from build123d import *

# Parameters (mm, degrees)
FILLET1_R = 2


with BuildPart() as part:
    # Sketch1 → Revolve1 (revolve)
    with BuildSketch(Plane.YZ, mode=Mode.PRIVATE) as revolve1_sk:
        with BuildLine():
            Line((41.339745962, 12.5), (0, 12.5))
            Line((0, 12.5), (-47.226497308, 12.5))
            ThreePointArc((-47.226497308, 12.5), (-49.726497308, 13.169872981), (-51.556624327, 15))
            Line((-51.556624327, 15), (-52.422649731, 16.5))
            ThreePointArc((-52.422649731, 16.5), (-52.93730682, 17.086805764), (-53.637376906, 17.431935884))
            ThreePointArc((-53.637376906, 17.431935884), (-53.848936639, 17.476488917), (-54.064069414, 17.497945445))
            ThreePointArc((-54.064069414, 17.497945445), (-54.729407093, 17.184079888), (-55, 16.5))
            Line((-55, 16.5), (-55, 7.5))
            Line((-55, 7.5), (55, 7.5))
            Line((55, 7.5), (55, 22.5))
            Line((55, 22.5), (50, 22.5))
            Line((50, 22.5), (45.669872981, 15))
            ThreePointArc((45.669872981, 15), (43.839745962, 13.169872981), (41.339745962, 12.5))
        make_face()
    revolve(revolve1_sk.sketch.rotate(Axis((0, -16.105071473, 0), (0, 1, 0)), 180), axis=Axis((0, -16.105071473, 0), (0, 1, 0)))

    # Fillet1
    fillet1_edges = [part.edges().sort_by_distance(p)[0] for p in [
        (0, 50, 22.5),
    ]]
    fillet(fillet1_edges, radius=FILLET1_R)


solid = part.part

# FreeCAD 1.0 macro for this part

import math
import FreeCAD as App
import Part
import Sketcher
Q = App.Units.Quantity


def edges_at(feature, points):
    """Names of the edges that pass closest to the given points."""
    edges = feature.Shape.Edges
    near = lambda p: min(range(len(edges)), key=lambda i: edges[i].distToShape(Part.Vertex(*p))[0])
    return sorted({f"Edge{near(p) + 1}" for p in points})

doc = App.newDocument("Part")
params = doc.addObject("Spreadsheet::Sheet", "Params")
for row, (alias, value) in enumerate([
    ("sketch1_radius", "5 mm"),
    ("sketch1_radius2", "2 mm"),
    ("sketch1_radius3", "1 mm"),
    ("sketch1_width", "110 mm"),
    ("sketch1_width2", "5 mm"),
    ("revolution_angle", "360 deg"),
    ("fillet_radius", "2 mm"),
], start=1):
    params.set(f"A{row}", alias)
    params.set(f"B{row}", "=" + value)
    params.setAlias(f"B{row}", alias)

body = doc.addObject("PartDesign::Body", "Body")

# Sketch on YZ plane
sketch1 = doc.addObject("Sketcher::SketchObject", "Sketch")
body.addObject(sketch1)
sketch1.AttachmentSupport = (doc.YZ_Plane, [""])
sketch1.MapMode = "FlatFace"
sketch1.addGeometry(Part.LineSegment(App.Vector(41.34, 12.5, 0), App.Vector(-47.23, 12.5, 0)), False)
sketch1.addGeometry(Part.ArcOfCircle(Part.Circle(App.Vector(-47.23, 17.5, 0), App.Vector(0, 0, 1), 5), math.radians(-150), math.radians(-90)), False)
sketch1.addGeometry(Part.LineSegment(App.Vector(-51.56, 15, 0), App.Vector(-52.42, 16.5, 0)), False)
sketch1.addGeometry(Part.ArcOfCircle(Part.Circle(App.Vector(-54.15, 15.5, 0), App.Vector(0, 0, 1), 2), math.radians(30), math.radians(75)), False)
sketch1.addGeometry(Part.ArcOfCircle(Part.Circle(App.Vector(-54.15, 15.5, 0), App.Vector(0, 0, 1), 2), math.radians(75.01), math.radians(87.4)), False)
sketch1.addGeometry(Part.ArcOfCircle(Part.Circle(App.Vector(-54, 16.5, 0), App.Vector(0, 0, 1), 1), math.radians(94), math.radians(180)), False)
sketch1.addGeometry(Part.LineSegment(App.Vector(-55, 16.5, 0), App.Vector(-55, 7.5, 0)), False)
sketch1.addGeometry(Part.LineSegment(App.Vector(-55, 7.5, 0), App.Vector(55, 7.5, 0)), False)
sketch1.addGeometry(Part.LineSegment(App.Vector(55, 7.5, 0), App.Vector(55, 22.5, 0)), False)
sketch1.addGeometry(Part.LineSegment(App.Vector(55, 22.5, 0), App.Vector(50, 22.5, 0)), False)
sketch1.addGeometry(Part.LineSegment(App.Vector(50, 22.5, 0), App.Vector(45.67, 15, 0)), False)
sketch1.addGeometry(Part.ArcOfCircle(Part.Circle(App.Vector(41.34, 17.5, 0), App.Vector(0, 0, 1), 5), math.radians(-90), math.radians(-30)), False)
sketch1.addConstraint(Sketcher.Constraint("Tangent", 0, 2, 1, 2))
sketch1.addConstraint(Sketcher.Constraint("Tangent", 1, 1, 2, 1))
sketch1.addConstraint(Sketcher.Constraint("Tangent", 2, 2, 3, 1))
sketch1.addConstraint(Sketcher.Constraint("Tangent", 3, 2, 4, 1))
sketch1.addConstraint(Sketcher.Constraint("Coincident", 4, 2, 5, 1))
sketch1.addConstraint(Sketcher.Constraint("Tangent", 5, 2, 6, 1))
sketch1.addConstraint(Sketcher.Constraint("Coincident", 6, 2, 7, 1))
sketch1.addConstraint(Sketcher.Constraint("Coincident", 7, 2, 8, 1))
sketch1.addConstraint(Sketcher.Constraint("Coincident", 8, 2, 9, 1))
sketch1.addConstraint(Sketcher.Constraint("Coincident", 9, 2, 10, 1))
sketch1.addConstraint(Sketcher.Constraint("Tangent", 10, 2, 11, 2))
sketch1.addConstraint(Sketcher.Constraint("Tangent", 11, 1, 0, 1))
sketch1.addConstraint(Sketcher.Constraint("Horizontal", 0))
sketch1.addConstraint(Sketcher.Constraint("Vertical", 6))
sketch1.addConstraint(Sketcher.Constraint("Horizontal", 7))
sketch1.addConstraint(Sketcher.Constraint("Vertical", 8))
sketch1.addConstraint(Sketcher.Constraint("Horizontal", 9))
sketch1.addConstraint(Sketcher.Constraint("Equal", 3, 4))
sketch1.addConstraint(Sketcher.Constraint("Equal", 1, 11))
sketch1.addConstraint(Sketcher.Constraint("Horizontal", 5, 3, 2, 2))
sketch1.addConstraint(Sketcher.Constraint("Horizontal", 1, 1, 10, 2))
sketch1.addConstraint(Sketcher.Constraint("Radius", 1, 5.0))
sketch1.addConstraint(Sketcher.Constraint("Radius", 3, 2.0))
sketch1.addConstraint(Sketcher.Constraint("Radius", 5, 1.0))
sketch1.addConstraint(Sketcher.Constraint("DistanceX", 7, 1, 7, 2, 110.0))
sketch1.addConstraint(Sketcher.Constraint("DistanceX", 9, 2, 9, 1, 5.0))
sketch1.addConstraint(Sketcher.Constraint("DistanceY", 6, 2, 6, 1, 9.0))
sketch1.addConstraint(Sketcher.Constraint("DistanceY", 8, 1, 8, 2, 15.0))
sketch1.addConstraint(Sketcher.Constraint("Angle", 2, Q("120 deg")))
sketch1.addConstraint(Sketcher.Constraint("DistanceX", 5, 3, -1, 1, 54.0))
sketch1.addConstraint(Sketcher.Constraint("DistanceY", -1, 1, 1, 1, 15.0))
sketch1.addConstraint(Sketcher.Constraint("DistanceY", 3, 3, 1, 3, 2.0))
sketch1.addConstraint(Sketcher.Constraint("DistanceX", 3, 3, -1, 1, 54.154701))
sketch1.addConstraint(Sketcher.Constraint("DistanceY", 3, 2, 4, 2, 0.06601))
sketch1.setExpression("Constraints[21]", "Params.sketch1_radius")
sketch1.setExpression("Constraints[22]", "Params.sketch1_radius2")
sketch1.setExpression("Constraints[23]", "Params.sketch1_radius3")
sketch1.setExpression("Constraints[24]", "Params.sketch1_width")
sketch1.setExpression("Constraints[25]", "Params.sketch1_width2")
revolution = doc.addObject("PartDesign::Revolution", "Revolution")
body.addObject(revolution)
revolution.Profile = sketch1
revolution.ReferenceAxis = (sketch1, ["H_Axis"])
revolution.setExpression("Angle", "Params.revolution_angle")
doc.recompute()

fillet = doc.addObject("PartDesign::Fillet", "Fillet")
body.addObject(fillet)
fillet.Base = (revolution, edges_at(revolution, [(0, 50, 22.5)]))
fillet.setExpression("Radius", "Params.fillet_radius")

doc.recompute()
